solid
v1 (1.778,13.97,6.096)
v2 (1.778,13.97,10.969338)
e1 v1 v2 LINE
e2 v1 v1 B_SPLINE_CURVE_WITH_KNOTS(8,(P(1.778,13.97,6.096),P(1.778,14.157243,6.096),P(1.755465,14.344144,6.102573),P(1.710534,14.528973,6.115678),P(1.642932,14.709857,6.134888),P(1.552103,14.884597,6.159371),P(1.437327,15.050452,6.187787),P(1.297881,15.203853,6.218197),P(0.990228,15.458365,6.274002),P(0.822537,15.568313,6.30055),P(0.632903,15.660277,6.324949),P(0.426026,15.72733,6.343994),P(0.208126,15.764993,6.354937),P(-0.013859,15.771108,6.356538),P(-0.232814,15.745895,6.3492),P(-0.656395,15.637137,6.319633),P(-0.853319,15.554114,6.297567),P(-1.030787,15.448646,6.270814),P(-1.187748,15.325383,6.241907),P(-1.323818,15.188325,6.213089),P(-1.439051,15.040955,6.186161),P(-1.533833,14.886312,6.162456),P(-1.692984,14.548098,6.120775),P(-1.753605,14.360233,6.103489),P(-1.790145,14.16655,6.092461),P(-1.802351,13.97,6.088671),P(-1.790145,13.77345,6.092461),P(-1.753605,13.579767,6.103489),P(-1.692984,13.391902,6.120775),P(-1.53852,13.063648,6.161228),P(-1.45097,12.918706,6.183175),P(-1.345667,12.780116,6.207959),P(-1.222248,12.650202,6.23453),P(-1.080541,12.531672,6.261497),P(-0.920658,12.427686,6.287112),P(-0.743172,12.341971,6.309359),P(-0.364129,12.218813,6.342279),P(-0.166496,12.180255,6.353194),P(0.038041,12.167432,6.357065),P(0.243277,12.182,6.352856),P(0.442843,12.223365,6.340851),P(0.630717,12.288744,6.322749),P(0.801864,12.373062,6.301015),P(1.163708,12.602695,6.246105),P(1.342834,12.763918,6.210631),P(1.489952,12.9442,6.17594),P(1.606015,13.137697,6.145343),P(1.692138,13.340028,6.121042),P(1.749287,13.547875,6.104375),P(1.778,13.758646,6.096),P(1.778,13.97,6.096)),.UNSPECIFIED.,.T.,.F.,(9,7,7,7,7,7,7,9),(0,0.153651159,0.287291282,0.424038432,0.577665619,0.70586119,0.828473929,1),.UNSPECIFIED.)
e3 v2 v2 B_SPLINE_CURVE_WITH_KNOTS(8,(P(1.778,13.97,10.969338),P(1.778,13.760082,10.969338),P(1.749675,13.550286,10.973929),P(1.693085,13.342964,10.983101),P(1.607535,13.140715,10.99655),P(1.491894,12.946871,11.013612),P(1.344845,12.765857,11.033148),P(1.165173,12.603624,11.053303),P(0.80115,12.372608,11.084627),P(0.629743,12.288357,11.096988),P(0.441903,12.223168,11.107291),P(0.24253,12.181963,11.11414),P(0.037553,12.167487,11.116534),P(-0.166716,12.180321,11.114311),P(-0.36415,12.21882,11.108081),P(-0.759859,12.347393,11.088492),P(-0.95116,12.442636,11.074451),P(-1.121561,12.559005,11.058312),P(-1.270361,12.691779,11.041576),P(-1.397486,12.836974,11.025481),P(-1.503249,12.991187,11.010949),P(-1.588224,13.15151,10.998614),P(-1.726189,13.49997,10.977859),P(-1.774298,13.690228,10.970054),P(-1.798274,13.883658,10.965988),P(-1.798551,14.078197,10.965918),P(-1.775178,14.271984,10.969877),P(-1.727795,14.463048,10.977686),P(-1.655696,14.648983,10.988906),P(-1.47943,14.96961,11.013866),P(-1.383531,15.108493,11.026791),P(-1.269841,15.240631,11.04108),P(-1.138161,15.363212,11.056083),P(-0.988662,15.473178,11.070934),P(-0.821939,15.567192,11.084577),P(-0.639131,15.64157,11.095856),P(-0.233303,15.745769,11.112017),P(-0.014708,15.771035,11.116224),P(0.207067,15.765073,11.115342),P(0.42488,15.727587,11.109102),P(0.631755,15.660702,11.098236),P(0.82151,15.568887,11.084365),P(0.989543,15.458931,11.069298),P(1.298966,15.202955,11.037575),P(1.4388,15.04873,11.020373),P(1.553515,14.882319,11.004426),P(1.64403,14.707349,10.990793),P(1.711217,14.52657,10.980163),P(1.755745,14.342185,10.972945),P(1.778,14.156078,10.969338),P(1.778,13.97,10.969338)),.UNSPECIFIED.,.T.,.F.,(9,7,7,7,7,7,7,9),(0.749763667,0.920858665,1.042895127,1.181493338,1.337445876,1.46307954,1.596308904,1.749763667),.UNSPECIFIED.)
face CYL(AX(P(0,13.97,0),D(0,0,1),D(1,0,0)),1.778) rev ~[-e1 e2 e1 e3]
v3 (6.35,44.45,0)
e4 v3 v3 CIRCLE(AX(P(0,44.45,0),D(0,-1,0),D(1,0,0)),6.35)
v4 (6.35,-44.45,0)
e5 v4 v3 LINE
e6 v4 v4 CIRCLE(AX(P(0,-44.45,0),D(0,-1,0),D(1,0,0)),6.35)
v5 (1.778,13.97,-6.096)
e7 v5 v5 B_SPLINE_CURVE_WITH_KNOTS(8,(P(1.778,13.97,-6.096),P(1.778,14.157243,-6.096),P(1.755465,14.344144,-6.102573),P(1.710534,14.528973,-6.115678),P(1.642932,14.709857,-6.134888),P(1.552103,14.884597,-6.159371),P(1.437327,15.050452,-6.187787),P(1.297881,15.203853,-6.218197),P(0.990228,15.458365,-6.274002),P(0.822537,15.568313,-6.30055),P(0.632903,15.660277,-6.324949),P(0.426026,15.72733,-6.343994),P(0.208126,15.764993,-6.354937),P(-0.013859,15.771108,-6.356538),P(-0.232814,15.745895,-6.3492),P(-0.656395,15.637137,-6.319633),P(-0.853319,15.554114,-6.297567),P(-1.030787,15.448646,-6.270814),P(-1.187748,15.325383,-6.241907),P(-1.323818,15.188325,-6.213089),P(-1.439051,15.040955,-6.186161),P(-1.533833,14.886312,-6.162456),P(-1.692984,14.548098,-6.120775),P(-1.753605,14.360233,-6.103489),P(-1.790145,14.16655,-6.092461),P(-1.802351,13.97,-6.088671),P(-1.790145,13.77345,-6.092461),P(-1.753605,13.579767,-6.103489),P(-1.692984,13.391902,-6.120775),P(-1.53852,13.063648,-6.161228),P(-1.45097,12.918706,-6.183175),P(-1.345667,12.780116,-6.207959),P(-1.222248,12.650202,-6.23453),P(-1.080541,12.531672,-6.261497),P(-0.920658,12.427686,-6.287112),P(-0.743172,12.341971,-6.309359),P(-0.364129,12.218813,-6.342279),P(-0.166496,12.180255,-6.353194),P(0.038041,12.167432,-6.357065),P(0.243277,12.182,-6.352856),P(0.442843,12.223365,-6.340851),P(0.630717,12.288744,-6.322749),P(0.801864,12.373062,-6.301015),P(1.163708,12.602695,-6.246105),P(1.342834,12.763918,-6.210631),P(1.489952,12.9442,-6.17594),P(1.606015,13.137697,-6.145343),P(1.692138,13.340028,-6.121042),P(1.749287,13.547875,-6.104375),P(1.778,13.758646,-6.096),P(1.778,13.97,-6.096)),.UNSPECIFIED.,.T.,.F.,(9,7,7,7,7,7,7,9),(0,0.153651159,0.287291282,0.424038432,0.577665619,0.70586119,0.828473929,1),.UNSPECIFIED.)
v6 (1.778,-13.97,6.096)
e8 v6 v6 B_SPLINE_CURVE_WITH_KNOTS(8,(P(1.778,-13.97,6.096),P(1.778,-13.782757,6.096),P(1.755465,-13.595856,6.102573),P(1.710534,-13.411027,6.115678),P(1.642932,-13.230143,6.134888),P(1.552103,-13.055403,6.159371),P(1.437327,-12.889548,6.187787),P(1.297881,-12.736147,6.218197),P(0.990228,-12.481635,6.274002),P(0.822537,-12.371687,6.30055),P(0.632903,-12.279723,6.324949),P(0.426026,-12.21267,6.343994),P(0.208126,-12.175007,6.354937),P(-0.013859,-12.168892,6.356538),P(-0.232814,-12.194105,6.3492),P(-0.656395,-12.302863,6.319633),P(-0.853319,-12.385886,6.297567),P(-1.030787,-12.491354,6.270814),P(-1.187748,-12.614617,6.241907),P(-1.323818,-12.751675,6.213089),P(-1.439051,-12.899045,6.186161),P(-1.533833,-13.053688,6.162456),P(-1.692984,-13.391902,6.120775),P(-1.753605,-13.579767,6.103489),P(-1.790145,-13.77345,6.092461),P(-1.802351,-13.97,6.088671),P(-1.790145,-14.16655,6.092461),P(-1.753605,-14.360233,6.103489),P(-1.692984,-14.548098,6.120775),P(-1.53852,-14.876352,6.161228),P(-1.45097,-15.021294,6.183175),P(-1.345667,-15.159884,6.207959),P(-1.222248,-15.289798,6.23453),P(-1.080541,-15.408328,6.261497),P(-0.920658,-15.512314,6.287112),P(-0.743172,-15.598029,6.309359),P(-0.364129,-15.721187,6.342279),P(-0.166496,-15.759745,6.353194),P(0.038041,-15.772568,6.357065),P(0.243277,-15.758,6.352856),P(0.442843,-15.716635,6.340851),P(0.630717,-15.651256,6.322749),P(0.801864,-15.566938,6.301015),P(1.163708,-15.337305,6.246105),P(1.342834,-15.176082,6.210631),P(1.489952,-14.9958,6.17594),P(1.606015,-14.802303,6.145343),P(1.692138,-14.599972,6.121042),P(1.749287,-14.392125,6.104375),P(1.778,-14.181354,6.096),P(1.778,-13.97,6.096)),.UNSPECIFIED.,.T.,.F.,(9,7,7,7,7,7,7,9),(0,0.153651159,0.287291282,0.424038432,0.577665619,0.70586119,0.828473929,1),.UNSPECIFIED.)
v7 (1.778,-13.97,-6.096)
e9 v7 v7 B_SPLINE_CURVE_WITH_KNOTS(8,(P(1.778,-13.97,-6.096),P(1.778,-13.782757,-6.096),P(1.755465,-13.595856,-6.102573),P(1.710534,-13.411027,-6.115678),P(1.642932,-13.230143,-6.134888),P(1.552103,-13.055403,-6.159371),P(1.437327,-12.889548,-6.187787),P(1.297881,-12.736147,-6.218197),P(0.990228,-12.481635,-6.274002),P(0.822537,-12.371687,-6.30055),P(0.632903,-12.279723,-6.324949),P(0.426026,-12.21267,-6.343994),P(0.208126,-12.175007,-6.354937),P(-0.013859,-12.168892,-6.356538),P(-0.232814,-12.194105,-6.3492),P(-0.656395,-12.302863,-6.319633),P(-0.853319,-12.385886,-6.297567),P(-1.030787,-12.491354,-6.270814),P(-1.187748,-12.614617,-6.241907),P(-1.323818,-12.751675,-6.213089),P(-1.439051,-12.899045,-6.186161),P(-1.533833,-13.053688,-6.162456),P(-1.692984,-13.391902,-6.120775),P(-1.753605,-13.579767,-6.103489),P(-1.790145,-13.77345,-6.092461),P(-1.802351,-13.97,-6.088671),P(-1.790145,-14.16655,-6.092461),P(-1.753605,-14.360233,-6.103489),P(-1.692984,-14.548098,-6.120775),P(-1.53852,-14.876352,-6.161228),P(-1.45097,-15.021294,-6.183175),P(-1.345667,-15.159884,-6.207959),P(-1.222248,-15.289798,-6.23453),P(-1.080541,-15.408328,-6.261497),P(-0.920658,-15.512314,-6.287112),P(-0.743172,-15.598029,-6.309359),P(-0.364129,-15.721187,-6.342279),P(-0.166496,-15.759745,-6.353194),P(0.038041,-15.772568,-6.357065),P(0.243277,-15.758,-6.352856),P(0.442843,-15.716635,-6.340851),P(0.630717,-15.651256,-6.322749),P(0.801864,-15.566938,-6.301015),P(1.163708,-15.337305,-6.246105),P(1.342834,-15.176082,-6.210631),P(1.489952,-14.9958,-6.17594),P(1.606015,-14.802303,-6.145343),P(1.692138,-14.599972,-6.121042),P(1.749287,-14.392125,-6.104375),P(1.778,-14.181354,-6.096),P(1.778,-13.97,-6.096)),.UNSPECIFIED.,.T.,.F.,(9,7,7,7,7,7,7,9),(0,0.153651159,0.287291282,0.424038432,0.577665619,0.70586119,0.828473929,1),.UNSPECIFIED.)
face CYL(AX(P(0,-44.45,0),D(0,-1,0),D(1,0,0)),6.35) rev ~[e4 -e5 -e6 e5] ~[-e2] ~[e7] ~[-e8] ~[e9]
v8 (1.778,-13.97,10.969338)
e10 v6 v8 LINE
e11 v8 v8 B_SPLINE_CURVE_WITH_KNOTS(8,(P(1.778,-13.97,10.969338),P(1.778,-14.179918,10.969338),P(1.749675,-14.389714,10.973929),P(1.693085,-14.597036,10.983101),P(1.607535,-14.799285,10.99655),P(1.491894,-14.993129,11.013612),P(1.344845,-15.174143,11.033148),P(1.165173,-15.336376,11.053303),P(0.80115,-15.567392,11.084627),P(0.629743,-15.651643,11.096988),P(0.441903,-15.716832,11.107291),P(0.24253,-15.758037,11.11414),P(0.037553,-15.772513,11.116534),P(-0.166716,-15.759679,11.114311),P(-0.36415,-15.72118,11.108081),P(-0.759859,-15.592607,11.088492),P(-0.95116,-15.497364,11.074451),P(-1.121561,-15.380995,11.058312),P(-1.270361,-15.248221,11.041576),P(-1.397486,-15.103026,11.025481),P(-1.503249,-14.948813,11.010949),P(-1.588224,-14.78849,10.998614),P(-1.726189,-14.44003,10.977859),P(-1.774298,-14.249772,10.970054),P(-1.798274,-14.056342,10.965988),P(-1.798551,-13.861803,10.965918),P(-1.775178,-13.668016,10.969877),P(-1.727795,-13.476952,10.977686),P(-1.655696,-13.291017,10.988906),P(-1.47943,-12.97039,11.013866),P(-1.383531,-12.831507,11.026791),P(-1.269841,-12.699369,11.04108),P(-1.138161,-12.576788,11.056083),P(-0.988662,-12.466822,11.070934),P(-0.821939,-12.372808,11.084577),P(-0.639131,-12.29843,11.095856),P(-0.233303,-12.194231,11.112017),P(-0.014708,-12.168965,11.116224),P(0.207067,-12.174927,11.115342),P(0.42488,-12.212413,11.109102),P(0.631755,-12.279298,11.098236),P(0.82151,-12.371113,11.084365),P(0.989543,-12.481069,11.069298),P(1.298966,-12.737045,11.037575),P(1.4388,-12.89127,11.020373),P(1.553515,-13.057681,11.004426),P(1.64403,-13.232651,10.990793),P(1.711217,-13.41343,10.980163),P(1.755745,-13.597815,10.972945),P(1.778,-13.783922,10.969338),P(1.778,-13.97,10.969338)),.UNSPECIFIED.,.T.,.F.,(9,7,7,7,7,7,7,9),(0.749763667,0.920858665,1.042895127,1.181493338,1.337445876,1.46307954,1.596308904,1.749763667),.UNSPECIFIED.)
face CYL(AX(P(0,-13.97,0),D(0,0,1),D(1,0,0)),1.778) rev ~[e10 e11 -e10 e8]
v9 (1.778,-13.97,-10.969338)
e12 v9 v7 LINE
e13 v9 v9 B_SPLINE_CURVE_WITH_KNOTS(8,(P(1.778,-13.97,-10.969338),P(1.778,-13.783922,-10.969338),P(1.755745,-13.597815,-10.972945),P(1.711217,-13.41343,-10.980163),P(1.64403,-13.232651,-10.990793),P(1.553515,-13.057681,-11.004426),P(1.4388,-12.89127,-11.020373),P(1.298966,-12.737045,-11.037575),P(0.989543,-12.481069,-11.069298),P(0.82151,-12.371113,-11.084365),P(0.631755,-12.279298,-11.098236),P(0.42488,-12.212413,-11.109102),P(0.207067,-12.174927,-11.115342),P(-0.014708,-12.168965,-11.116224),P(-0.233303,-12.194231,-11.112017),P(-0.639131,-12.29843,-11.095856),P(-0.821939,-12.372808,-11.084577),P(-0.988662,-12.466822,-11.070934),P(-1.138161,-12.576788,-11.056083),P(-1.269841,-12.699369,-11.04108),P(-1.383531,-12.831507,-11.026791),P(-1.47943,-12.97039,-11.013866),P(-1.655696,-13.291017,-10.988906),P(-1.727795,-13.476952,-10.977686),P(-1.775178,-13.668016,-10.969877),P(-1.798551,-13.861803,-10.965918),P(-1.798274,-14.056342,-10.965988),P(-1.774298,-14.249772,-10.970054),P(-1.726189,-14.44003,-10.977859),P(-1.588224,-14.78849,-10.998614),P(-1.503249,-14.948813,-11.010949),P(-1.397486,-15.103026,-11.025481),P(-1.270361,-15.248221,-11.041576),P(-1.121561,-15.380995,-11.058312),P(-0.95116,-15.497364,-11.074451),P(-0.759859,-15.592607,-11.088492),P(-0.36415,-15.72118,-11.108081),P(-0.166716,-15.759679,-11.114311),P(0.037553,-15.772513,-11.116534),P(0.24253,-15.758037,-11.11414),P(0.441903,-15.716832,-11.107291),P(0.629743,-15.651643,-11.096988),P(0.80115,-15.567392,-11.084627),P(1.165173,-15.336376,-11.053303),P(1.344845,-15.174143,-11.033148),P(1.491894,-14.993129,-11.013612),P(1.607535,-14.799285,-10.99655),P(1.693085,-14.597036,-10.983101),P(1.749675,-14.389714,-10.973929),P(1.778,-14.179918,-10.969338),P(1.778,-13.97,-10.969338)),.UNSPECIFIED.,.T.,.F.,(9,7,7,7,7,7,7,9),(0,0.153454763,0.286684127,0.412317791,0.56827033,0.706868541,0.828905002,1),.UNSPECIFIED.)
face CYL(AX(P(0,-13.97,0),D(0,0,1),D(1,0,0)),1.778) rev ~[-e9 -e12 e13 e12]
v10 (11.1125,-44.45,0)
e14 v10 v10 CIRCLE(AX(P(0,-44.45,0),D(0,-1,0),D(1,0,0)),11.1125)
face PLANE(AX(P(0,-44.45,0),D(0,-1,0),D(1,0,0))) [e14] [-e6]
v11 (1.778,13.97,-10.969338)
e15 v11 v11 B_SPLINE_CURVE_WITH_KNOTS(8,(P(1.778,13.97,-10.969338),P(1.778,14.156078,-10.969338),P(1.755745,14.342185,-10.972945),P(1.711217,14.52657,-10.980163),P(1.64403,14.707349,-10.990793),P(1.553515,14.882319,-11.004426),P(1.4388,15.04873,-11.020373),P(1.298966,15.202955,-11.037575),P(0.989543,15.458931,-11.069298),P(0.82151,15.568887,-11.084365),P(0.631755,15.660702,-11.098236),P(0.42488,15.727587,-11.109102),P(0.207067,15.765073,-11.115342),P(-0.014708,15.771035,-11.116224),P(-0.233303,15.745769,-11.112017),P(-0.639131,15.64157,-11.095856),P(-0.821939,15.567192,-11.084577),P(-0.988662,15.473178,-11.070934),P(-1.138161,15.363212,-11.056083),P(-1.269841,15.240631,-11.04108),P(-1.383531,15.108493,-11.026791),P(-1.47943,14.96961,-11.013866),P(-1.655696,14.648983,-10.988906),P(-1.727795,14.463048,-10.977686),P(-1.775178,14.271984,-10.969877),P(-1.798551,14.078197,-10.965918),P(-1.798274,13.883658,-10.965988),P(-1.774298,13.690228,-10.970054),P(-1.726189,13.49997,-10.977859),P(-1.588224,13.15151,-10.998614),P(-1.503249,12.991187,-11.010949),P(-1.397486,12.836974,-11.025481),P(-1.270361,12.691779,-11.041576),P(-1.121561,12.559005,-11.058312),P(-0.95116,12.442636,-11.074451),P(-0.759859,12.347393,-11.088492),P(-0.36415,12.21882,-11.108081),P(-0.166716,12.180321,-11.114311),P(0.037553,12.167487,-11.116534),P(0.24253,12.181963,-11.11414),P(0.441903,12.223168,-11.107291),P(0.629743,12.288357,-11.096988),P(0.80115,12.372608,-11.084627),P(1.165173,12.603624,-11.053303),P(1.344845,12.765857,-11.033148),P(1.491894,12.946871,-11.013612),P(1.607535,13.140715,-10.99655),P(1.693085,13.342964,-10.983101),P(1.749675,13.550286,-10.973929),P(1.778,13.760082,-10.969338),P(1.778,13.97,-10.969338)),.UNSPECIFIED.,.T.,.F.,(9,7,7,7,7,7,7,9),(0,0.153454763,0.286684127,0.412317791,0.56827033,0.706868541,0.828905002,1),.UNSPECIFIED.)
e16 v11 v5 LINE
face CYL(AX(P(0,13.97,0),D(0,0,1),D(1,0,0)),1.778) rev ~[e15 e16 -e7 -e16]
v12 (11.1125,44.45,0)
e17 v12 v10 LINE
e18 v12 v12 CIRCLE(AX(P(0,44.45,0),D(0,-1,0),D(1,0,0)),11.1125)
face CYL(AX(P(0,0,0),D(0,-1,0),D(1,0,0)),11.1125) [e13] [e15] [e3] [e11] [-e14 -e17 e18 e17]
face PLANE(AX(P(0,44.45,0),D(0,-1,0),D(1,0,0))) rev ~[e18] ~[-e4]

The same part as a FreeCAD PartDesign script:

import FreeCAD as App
import Part
import Sketcher
Q = App.Units.Quantity

doc = App.newDocument("Part")
params = doc.addObject("Spreadsheet::Sheet", "Params")
for row, (alias, value) in enumerate([
    ("sketch1_diameter", "0.875 in"),
    ("pad1_length", "3.5 in"),
    ("sketch2_diameter", "0.5 in"),
    ("sketch3_diameter", "0.14 in"),
    ("pocket2_length", "0.875 in"),
    ("sketch4_diameter", "0.14 in"),
    ("pocket3_length", "0.875 in"),
], start=1):
    params.set(f"A{row}", alias)
    params.set(f"B{row}", "=" + value)
    params.setAlias(f"B{row}", alias)

body = doc.addObject("PartDesign::Body", "Body")

# Sketch on XZ plane
sketch1 = doc.addObject("Sketcher::SketchObject", "Sketch")
body.addObject(sketch1)
sketch1.AttachmentSupport = (doc.XZ_Plane, [""])
sketch1.MapMode = "FlatFace"
sketch1.addGeometry(Part.Circle(App.Vector(0, 0, 0), App.Vector(0, 0, 1), 11.1125), False)
sketch1.addConstraint([
    Sketcher.Constraint("Coincident", 0, 3, -1, 1),
    Sketcher.Constraint("Diameter", 0, Q("0.875 in")),
])
sketch1.setExpression("Constraints[1]", "Params.sketch1_diameter")
pad1 = doc.addObject("PartDesign::Pad", "Pad")
body.addObject(pad1)
pad1.Profile = sketch1
pad1.setExpression("Length", "Params.pad1_length")
pad1.Midplane = True

# Sketch on XZ plane
sketch2 = doc.addObject("Sketcher::SketchObject", "Sketch001")
body.addObject(sketch2)
sketch2.AttachmentSupport = (doc.XZ_Plane, [""])
sketch2.MapMode = "FlatFace"
sketch2.AttachmentOffset = App.Placement(App.Vector(0, 0, 1.75 * 25.4), App.Rotation())
sketch2.addGeometry(Part.Circle(App.Vector(0, 0, 0), App.Vector(0, 0, 1), 6.35), False)
sketch2.addConstraint([
    Sketcher.Constraint("Coincident", 0, 3, -1, 1),
    Sketcher.Constraint("Diameter", 0, Q("0.5 in")),
])
sketch2.setExpression("Constraints[1]", "Params.sketch2_diameter")
pocket1 = doc.addObject("PartDesign::Pocket", "Pocket")
body.addObject(pocket1)
pocket1.Profile = sketch2
pocket1.Type = "ThroughAll"

# Sketch on XY plane
sketch3 = doc.addObject("Sketcher::SketchObject", "Sketch002")
body.addObject(sketch3)
sketch3.AttachmentSupport = (doc.XY_Plane, [""])
sketch3.MapMode = "FlatFace"
sketch3.addGeometry(Part.Circle(App.Vector(0, 13.97, 0), App.Vector(0, 0, 1), 1.778), False)
sketch3.addConstraint([
    Sketcher.Constraint("PointOnObject", 0, 3, -2),
    Sketcher.Constraint("Diameter", 0, Q("0.14 in")),
    Sketcher.Constraint("DistanceY", -1, 1, 0, 3, Q("0.55 in")),
])
sketch3.setExpression("Constraints[1]", "Params.sketch3_diameter")
pocket2 = doc.addObject("PartDesign::Pocket", "Pocket001")
body.addObject(pocket2)
pocket2.Profile = sketch3
pocket2.setExpression("Length", "Params.pocket2_length")
pocket2.Midplane = True

# Sketch on XY plane
sketch4 = doc.addObject("Sketcher::SketchObject", "Sketch003")
body.addObject(sketch4)
sketch4.AttachmentSupport = (doc.XY_Plane, [""])
sketch4.MapMode = "FlatFace"
sketch4.addGeometry(Part.Circle(App.Vector(0, -13.97, 0), App.Vector(0, 0, 1), 1.778), False)
sketch4.addConstraint([
    Sketcher.Constraint("PointOnObject", 0, 3, -2),
    Sketcher.Constraint("Diameter", 0, Q("0.14 in")),
    Sketcher.Constraint("DistanceY", 0, 3, -1, 1, Q("0.55 in")),
])
sketch4.setExpression("Constraints[1]", "Params.sketch4_diameter")
pocket3 = doc.addObject("PartDesign::Pocket", "Pocket002")
body.addObject(pocket3)
pocket3.Profile = sketch4
pocket3.setExpression("Length", "Params.pocket3_length")
pocket3.Midplane = True

doc.recompute()
